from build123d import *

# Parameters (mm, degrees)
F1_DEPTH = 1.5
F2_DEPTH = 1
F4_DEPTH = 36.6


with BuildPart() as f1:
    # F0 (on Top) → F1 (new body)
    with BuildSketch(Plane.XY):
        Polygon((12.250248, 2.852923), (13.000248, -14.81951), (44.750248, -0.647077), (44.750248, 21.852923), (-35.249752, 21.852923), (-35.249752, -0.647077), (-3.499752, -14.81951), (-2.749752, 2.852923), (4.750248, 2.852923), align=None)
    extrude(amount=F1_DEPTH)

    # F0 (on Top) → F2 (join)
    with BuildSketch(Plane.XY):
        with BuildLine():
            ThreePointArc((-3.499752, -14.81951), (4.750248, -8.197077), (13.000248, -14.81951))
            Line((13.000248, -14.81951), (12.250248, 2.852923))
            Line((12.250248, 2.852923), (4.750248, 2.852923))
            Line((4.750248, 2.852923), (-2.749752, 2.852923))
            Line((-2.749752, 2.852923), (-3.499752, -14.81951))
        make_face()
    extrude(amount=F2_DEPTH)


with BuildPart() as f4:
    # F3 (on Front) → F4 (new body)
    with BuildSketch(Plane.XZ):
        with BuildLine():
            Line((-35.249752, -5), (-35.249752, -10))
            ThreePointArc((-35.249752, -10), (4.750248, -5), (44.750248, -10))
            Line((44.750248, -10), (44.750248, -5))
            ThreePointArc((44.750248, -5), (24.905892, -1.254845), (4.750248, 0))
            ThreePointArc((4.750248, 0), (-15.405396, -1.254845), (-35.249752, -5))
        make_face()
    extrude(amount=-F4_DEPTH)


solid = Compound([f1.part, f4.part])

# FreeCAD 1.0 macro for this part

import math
import FreeCAD as App
import Part
import Sketcher
from FreeCAD import Vector
Q = App.Units.Quantity


def add_polygon(sketch, points):
    """Adds a closed chain of lines whose ends are joined by coincident constraints."""
    first, n = sketch.GeometryCount, len(points)
    for a, b in zip(points, points[1:] + points[:1]):
        sketch.addGeometry(Part.LineSegment(App.Vector(*a, 0), App.Vector(*b, 0)), False)
    for i in range(n):
        sketch.addConstraint(Sketcher.Constraint("Coincident", first + i, 2, first + (i + 1) % n, 1))

doc = App.newDocument("Part")
params = doc.addObject("Spreadsheet::Sheet", "Params")
for row, (alias, value) in enumerate([
    ("sketch1_width", "80 mm"),
    ("sketch1_width2", "15 mm"),
    ("sketch1_height", "22.5 mm"),
    ("pad1_length", "1.5 mm"),
    ("sketch2_width", "15 mm"),
    ("sketch2_radius", "8.45 mm"),
    ("pad2_length", "1 mm"),
    ("sketch3_radius", "162.5 mm"),
    ("sketch3_height", "5 mm"),
    ("pad3_length", "36.6 mm"),
], start=1):
    params.set(f"A{row}", alias)
    params.set(f"B{row}", "=" + value)
    params.setAlias(f"B{row}", alias)

body = doc.addObject("PartDesign::Body", "Body")

sketch1 = doc.addObject("Sketcher::SketchObject", "Sketch")
body.addObject(sketch1)
sketch1.AttachmentSupport = (doc.XY_Plane, [""])
sketch1.MapMode = "FlatFace"
add_polygon(sketch1, [(12, 3), (13, -15), (45, -1), (45, 22), (-35, 22), (-35, -1), (-3, -15), (-3, 3)])
sketch1.addConstraint([
    Sketcher.Constraint("Vertical", 2),
    Sketcher.Constraint("Horizontal", 3),
    Sketcher.Constraint("Vertical", 4),
    Sketcher.Constraint("Horizontal", 7),
    Sketcher.Constraint("Horizontal", 1, 2, 4, 2),
    Sketcher.Constraint("Horizontal", 0, 2, 5, 2),
    Sketcher.Constraint("Equal", 1, 5),
    Sketcher.Constraint("Equal", 0, 6),
    Sketcher.Constraint("DistanceX", 3, 2, 3, 1, Q("80 mm")),
    Sketcher.Constraint("DistanceX", 7, 1, 7, 2, Q("15 mm")),
    Sketcher.Constraint("DistanceY", 2, 1, 2, 2, Q("22.5 mm")),
    Sketcher.Constraint("DistanceY", 6, 2, 3, 2, Q("19 mm")),
    Sketcher.Constraint("DistanceX", 5, 2, 0, 2, Q("16.5 mm")),
    Sketcher.Constraint("Distance", 0, Q("17.68834 mm")),
    Sketcher.Constraint("DistanceY", 0, 2, -1, 1, Q("14.81951 mm")),
    Sketcher.Constraint("DistanceX", 5, 2, -1, 1, Q("3.499752 mm")),
])
sketch1.setExpression("Constraints[16]", "Params.sketch1_width")
sketch1.setExpression("Constraints[17]", "Params.sketch1_width2")
sketch1.setExpression("Constraints[18]", "Params.sketch1_height")
pad1 = doc.addObject("PartDesign::Pad", "Pad")
body.addObject(pad1)
pad1.Profile = sketch1
pad1.setExpression("Length", "Params.pad1_length")

sketch2 = doc.addObject("Sketcher::SketchObject", "Sketch001")
body.addObject(sketch2)
sketch2.AttachmentSupport = (doc.XY_Plane, [""])
sketch2.MapMode = "FlatFace"
sketch2.addGeometry([
    Part.ArcOfCircle(Part.Circle(Vector(5, -17, 0), Vector(0, 0, 1), 8), math.radians(12), math.radians(168)),
    Part.LineSegment(Vector(13, -15, 0), Vector(12, 3, 0)),
    Part.LineSegment(Vector(12, 3, 0), Vector(-3, 3, 0)),
    Part.LineSegment(Vector(-3, 3, 0), Vector(-3, -15, 0)),
], False)
sketch2.addConstraint([
    Sketcher.Constraint("Coincident", 0, 1, 1, 1),
    Sketcher.Constraint("Coincident", 1, 2, 2, 1),
    Sketcher.Constraint("Coincident", 2, 2, 3, 1),
    Sketcher.Constraint("Coincident", 3, 2, 0, 2),
    Sketcher.Constraint("Horizontal", 2),
    Sketcher.Constraint("Horizontal", 0, 1, 3, 2),
    Sketcher.Constraint("Equal", 1, 3),
    Sketcher.Constraint("DistanceX", 2, 2, 2, 1, Q("15 mm")),
    Sketcher.Constraint("Radius", 0, Q("8.45 mm")),
    Sketcher.Constraint("DistanceY", 0, 3, 1, 2, Q("19.5 mm")),
    Sketcher.Constraint("DistanceX", 3, 2, 0, 1, Q("16.5 mm")),
    Sketcher.Constraint("DistanceY", 0, 1, -1, 1, Q("14.81951 mm")),
    Sketcher.Constraint("DistanceX", 2, 2, -1, 1, Q("2.749752 mm")),
])
sketch2.setExpression("Constraints[7]", "Params.sketch2_width")
sketch2.setExpression("Constraints[8]", "Params.sketch2_radius")
pad2 = doc.addObject("PartDesign::Pad", "Pad001")
body.addObject(pad2)
pad2.Profile = sketch2
pad2.setExpression("Length", "Params.pad2_length")
body2 = doc.addObject("PartDesign::Body", "Body001")

sketch3 = doc.addObject("Sketcher::SketchObject", "Sketch002")
body2.addObject(sketch3)
sketch3.AttachmentSupport = (doc.getObject("XZ_Plane001"), [""])
sketch3.MapMode = "FlatFace"
sketch3.addGeometry([
    Part.LineSegment(Vector(-35, -5, 0), Vector(-35, -10, 0)),
    Part.ArcOfCircle(Part.Circle(Vector(5, -168, 0), Vector(0, 0, 1), 162), math.radians(76), math.radians(104)),
    Part.LineSegment(Vector(45, -10, 0), Vector(45, -5, 0)),
    Part.ArcOfCircle(Part.Circle(Vector(5, -163, 0), Vector(0, 0, 1), 163), math.radians(75.75), math.radians(90)),
    Part.ArcOfCircle(Part.Circle(Vector(5, -163, 0), Vector(0, 0, 1), 163), math.radians(90), math.radians(104.25)),
], False)
sketch3.addConstraint([
    Sketcher.Constraint("Coincident", 0, 2, 1, 2),
    Sketcher.Constraint("Coincident", 1, 1, 2, 1),
    Sketcher.Constraint("Coincident", 2, 2, 3, 1),
    Sketcher.Constraint("Tangent", 3, 2, 4, 1),
    Sketcher.Constraint("Coincident", 4, 2, 0, 1),
    Sketcher.Constraint("Vertical", 0),
    Sketcher.Constraint("Vertical", 2),
    Sketcher.Constraint("Equal", 1, 3),
    Sketcher.Constraint("Equal", 3, 4),
    Sketcher.Constraint("PointOnObject", 3, 2, -1),
    Sketcher.Constraint("Horizontal", 0, 2, 1, 1),
    Sketcher.Constraint("Horizontal", 2, 2, 4, 2),
    Sketcher.Constraint("Vertical", 4, 3, 3, 2),
    Sketcher.Constraint("Radius", 1, Q("162.5 mm")),
    Sketcher.Constraint("DistanceY", 0, 2, 0, 1, Q("5 mm")),
    Sketcher.Constraint("DistanceY", 0, 2, -1, 1, Q("10 mm")),
    Sketcher.Constraint("DistanceX", -1, 1, 4, 3, Q("4.750248 mm")),
])
sketch3.setExpression("Constraints[13]", "Params.sketch3_radius")
sketch3.setExpression("Constraints[14]", "Params.sketch3_height")
pad3 = doc.addObject("PartDesign::Pad", "Pad002")
body2.addObject(pad3)
pad3.Profile = sketch3
pad3.setExpression("Length", "Params.pad3_length")
pad3.Reversed = True

doc.recompute()
